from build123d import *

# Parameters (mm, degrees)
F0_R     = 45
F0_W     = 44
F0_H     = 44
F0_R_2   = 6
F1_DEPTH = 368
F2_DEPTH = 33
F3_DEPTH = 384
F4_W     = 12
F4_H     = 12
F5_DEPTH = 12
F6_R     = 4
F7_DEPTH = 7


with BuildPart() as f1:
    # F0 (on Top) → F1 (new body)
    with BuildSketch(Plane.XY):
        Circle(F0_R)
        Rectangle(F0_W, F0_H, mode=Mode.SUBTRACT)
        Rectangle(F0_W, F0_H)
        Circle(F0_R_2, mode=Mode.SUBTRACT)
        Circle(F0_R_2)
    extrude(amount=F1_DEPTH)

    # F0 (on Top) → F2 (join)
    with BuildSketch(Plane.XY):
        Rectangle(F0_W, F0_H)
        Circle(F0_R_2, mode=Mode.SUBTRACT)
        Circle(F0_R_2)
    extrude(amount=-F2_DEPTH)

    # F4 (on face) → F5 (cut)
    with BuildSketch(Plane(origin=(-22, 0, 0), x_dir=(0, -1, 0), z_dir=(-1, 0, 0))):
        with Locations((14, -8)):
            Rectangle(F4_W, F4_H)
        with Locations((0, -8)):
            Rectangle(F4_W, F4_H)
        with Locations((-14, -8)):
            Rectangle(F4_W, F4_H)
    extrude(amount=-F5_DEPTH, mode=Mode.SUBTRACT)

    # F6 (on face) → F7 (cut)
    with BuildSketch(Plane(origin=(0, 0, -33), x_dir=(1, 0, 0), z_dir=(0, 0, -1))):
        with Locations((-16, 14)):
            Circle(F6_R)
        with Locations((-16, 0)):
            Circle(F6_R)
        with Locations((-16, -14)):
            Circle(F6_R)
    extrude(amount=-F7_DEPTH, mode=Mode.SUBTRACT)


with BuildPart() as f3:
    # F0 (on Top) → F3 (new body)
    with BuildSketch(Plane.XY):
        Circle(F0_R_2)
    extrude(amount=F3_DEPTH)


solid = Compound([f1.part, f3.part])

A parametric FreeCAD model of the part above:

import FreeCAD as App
import Part
import Sketcher

V = App.Vector
Q = App.Units.Quantity


def add_polygon(sketch, points):
    """Adds a closed chain of lines whose ends are joined by coincident constraints."""
    first, n = sketch.GeometryCount, len(points)
    for a, b in zip(points, points[1:] + points[:1]):
        sketch.addGeometry(Part.LineSegment(App.Vector(*a, 0), App.Vector(*b, 0)), False)
    for i in range(n):
        sketch.addConstraint(Sketcher.Constraint("Coincident", first + i, 2, first + (i + 1) % n, 1))

doc = App.newDocument("Part")
body = doc.addObject("PartDesign::Body", "Body")

# Sketch on XY plane
sketch1 = body.newObject("Sketcher::SketchObject", "Sketch")
sketch1.AttachmentSupport = (doc.getObject("XY_Plane"), [""])
sketch1.MapMode = "FlatFace"
sketch1.addGeometry(Part.Circle(V(0, 0, 0), V(0, 0, 1), 45), False)
sketch1.addConstraint(Sketcher.Constraint("Coincident", 0, 3, -1, 1))
sketch1.addConstraint(Sketcher.Constraint("Diameter", 0, Q("90 mm")))
pad1 = body.newObject("PartDesign::Pad", "Pad")
pad1.Profile = sketch1
pad1.Length = 368

# Sketch on XY plane
sketch2 = body.newObject("Sketcher::SketchObject", "Sketch001")
sketch2.AttachmentSupport = (doc.getObject("XY_Plane"), [""])
sketch2.MapMode = "FlatFace"
add_polygon(sketch2, [(-22, 22), (-22, -22), (22, -22), (22, 22)])  # lines 0-3
sketch2.addConstraint(Sketcher.Constraint("Vertical", 0))
sketch2.addConstraint(Sketcher.Constraint("Horizontal", 1))
sketch2.addConstraint(Sketcher.Constraint("Vertical", 2))
sketch2.addConstraint(Sketcher.Constraint("Horizontal", 3))
sketch2.addConstraint(Sketcher.Constraint("Symmetric", 0, 2, 2, 2, -1, 1))
sketch2.addConstraint(Sketcher.Constraint("Equal", 3, 0))
sketch2.addConstraint(Sketcher.Constraint("DistanceX", 1, 1, 1, 2, Q("44 mm")))
pad2 = body.newObject("PartDesign::Pad", "Pad001")
pad2.Profile = sketch2
pad2.Length = 33
pad2.Reversed = True

# Sketch on YZ plane
sketch3 = body.newObject("Sketcher::SketchObject", "Sketch002")
sketch3.AttachmentSupport = (doc.getObject("YZ_Plane"), [""])
sketch3.MapMode = "FlatFace"
sketch3.AttachmentOffset = App.Placement(V(0, 0, -22), App.Rotation())
add_polygon(sketch3, [(-8, -2), (-8, -14), (-20, -14), (-20, -2)])  # lines 0-3
add_polygon(sketch3, [(6, -2), (6, -14), (-6, -14), (-6, -2)])  # lines 4-7
add_polygon(sketch3, [(20, -2), (20, -14), (8, -14), (8, -2)])  # lines 8-11
sketch3.addConstraint(Sketcher.Constraint("Vertical", 0))
sketch3.addConstraint(Sketcher.Constraint("Horizontal", 1))
sketch3.addConstraint(Sketcher.Constraint("Vertical", 2))
sketch3.addConstraint(Sketcher.Constraint("Horizontal", 3))
sketch3.addConstraint(Sketcher.Constraint("Vertical", 4))
sketch3.addConstraint(Sketcher.Constraint("Horizontal", 5))
sketch3.addConstraint(Sketcher.Constraint("Vertical", 6))
sketch3.addConstraint(Sketcher.Constraint("Horizontal", 7))
sketch3.addConstraint(Sketcher.Constraint("Vertical", 8))
sketch3.addConstraint(Sketcher.Constraint("Horizontal", 9))
sketch3.addConstraint(Sketcher.Constraint("Vertical", 10))
sketch3.addConstraint(Sketcher.Constraint("Horizontal", 11))
sketch3.addConstraint(Sketcher.Constraint("Symmetric", 1, 2, 8, 2, -2))
sketch3.addConstraint(Sketcher.Constraint("Symmetric", 3, 2, 10, 2, -2))
sketch3.addConstraint(Sketcher.Constraint("Horizontal", 1, 2, 4, 2))
sketch3.addConstraint(Sketcher.Constraint("Horizontal", 3, 2, 6, 2))
sketch3.addConstraint(Sketcher.Constraint("Equal", 3, 5))
sketch3.addConstraint(Sketcher.Constraint("Equal", 11, 0))
sketch3.addConstraint(Sketcher.Constraint("DistanceX", 1, 2, 1, 1, Q("12 mm")))
sketch3.addConstraint(Sketcher.Constraint("DistanceX", 0, 2, -1, 1, Q("8 mm")))
sketch3.addConstraint(Sketcher.Constraint("DistanceY", 0, 2, -1, 1, Q("14 mm")))
sketch3.addConstraint(Sketcher.Constraint("DistanceX", -1, 1, 4, 2, Q("6 mm")))
pocket1 = body.newObject("PartDesign::Pocket", "Pocket")
pocket1.Profile = sketch3
pocket1.Length = 12
pocket1.Reversed = True

# Sketch on XY plane
sketch4 = body.newObject("Sketcher::SketchObject", "Sketch003")
sketch4.AttachmentSupport = (doc.getObject("XY_Plane"), [""])
sketch4.MapMode = "FlatFace"
sketch4.AttachmentOffset = App.Placement(V(0, 0, -33), App.Rotation())
sketch4.addGeometry(Part.Circle(V(-16, -14, 0), V(0, 0, 1), 4), False)
sketch4.addGeometry(Part.Circle(V(-16, 0, 0), V(0, 0, 1), 4), False)
sketch4.addGeometry(Part.Circle(V(-16, 14, 0), V(0, 0, 1), 4), False)
sketch4.addConstraint(Sketcher.Constraint("Equal", 0, 1))
sketch4.addConstraint(Sketcher.Constraint("Equal", 1, 2))
sketch4.addConstraint(Sketcher.Constraint("Symmetric", 0, 3, 2, 3, -1))
sketch4.addConstraint(Sketcher.Constraint("PointOnObject", 1, 3, -1))
sketch4.addConstraint(Sketcher.Constraint("Vertical", 0, 3, 1, 3))
sketch4.addConstraint(Sketcher.Constraint("Diameter", 0, Q("8 mm")))
sketch4.addConstraint(Sketcher.Constraint("DistanceX", 0, 3, -1, 1, Q("16 mm")))
sketch4.addConstraint(Sketcher.Constraint("DistanceY", 0, 3, -1, 1, Q("14 mm")))
pocket2 = body.newObject("PartDesign::Pocket", "Pocket001")
pocket2.Profile = sketch4
pocket2.Length = 7
pocket2.Reversed = True
body2 = doc.addObject("PartDesign::Body", "Body001")

# Sketch on XY plane
sketch5 = body2.newObject("Sketcher::SketchObject", "Sketch004")
sketch5.AttachmentSupport = (doc.getObject("XY_Plane001"), [""])
sketch5.MapMode = "FlatFace"
sketch5.addGeometry(Part.Circle(V(0, 0, 0), V(0, 0, 1), 6), False)
sketch5.addConstraint(Sketcher.Constraint("Coincident", 0, 3, -1, 1))
sketch5.addConstraint(Sketcher.Constraint("Diameter", 0, Q("12 mm")))
pad3 = body2.newObject("PartDesign::Pad", "Pad002")
pad3.Profile = sketch5
pad3.Length = 384

doc.recompute()
